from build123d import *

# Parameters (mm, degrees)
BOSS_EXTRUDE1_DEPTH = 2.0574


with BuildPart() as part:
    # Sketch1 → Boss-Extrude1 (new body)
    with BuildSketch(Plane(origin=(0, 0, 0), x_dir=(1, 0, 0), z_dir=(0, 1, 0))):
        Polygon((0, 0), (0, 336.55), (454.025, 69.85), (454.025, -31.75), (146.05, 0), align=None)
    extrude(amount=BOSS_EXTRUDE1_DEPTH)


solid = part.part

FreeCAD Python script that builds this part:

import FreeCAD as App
import Part
import Sketcher

V = App.Vector
Q = App.Units.Quantity


def add_polygon(sketch, points):
    """Adds a closed chain of lines whose ends are joined by coincident constraints."""
    first, n = sketch.GeometryCount, len(points)
    for a, b in zip(points, points[1:] + points[:1]):
        sketch.addGeometry(Part.LineSegment(App.Vector(*a, 0), App.Vector(*b, 0)), False)
    for i in range(n):
        sketch.addConstraint(Sketcher.Constraint("Coincident", first + i, 2, first + (i + 1) % n, 1))

doc = App.newDocument("Part")
body = doc.addObject("PartDesign::Body", "Body")

# Sketch on XZ plane
sketch1 = doc.addObject("Sketcher::SketchObject", "Sketch")
body.addObject(sketch1)
sketch1.AttachmentSupport = (doc.XZ_Plane, [""])
sketch1.MapMode = "FlatFace"
add_polygon(sketch1, [(0, -337), (0, 0), (146, 0), (454, 32), (454, -70)])  # lines 0-4
sketch1.addConstraint([
    Sketcher.Constraint("Vertical", 0),
    Sketcher.Constraint("Horizontal", 1),
    Sketcher.Constraint("Vertical", 3),
    Sketcher.Constraint("Coincident", 0, 2, -1, 1),
    Sketcher.Constraint("DistanceY", 3, 2, 3, 1, Q("4 in")),
    Sketcher.Constraint("DistanceX", 1, 1, 1, 2, Q("5.75 in")),
    Sketcher.Constraint("DistanceY", 0, 1, 0, 2, Q("13.25 in")),
    Sketcher.Constraint("DistanceY", 4, 2, 3, 2, Q("10.5 in")),
    Sketcher.Constraint("DistanceX", -1, 1, 2, 2, Q("17.875 in")),
])
pad1 = doc.addObject("PartDesign::Pad", "Pad")
body.addObject(pad1)
pad1.Profile = sketch1
pad1.Length = Q("0.081 in")
pad1.Reversed = True

doc.recompute()
